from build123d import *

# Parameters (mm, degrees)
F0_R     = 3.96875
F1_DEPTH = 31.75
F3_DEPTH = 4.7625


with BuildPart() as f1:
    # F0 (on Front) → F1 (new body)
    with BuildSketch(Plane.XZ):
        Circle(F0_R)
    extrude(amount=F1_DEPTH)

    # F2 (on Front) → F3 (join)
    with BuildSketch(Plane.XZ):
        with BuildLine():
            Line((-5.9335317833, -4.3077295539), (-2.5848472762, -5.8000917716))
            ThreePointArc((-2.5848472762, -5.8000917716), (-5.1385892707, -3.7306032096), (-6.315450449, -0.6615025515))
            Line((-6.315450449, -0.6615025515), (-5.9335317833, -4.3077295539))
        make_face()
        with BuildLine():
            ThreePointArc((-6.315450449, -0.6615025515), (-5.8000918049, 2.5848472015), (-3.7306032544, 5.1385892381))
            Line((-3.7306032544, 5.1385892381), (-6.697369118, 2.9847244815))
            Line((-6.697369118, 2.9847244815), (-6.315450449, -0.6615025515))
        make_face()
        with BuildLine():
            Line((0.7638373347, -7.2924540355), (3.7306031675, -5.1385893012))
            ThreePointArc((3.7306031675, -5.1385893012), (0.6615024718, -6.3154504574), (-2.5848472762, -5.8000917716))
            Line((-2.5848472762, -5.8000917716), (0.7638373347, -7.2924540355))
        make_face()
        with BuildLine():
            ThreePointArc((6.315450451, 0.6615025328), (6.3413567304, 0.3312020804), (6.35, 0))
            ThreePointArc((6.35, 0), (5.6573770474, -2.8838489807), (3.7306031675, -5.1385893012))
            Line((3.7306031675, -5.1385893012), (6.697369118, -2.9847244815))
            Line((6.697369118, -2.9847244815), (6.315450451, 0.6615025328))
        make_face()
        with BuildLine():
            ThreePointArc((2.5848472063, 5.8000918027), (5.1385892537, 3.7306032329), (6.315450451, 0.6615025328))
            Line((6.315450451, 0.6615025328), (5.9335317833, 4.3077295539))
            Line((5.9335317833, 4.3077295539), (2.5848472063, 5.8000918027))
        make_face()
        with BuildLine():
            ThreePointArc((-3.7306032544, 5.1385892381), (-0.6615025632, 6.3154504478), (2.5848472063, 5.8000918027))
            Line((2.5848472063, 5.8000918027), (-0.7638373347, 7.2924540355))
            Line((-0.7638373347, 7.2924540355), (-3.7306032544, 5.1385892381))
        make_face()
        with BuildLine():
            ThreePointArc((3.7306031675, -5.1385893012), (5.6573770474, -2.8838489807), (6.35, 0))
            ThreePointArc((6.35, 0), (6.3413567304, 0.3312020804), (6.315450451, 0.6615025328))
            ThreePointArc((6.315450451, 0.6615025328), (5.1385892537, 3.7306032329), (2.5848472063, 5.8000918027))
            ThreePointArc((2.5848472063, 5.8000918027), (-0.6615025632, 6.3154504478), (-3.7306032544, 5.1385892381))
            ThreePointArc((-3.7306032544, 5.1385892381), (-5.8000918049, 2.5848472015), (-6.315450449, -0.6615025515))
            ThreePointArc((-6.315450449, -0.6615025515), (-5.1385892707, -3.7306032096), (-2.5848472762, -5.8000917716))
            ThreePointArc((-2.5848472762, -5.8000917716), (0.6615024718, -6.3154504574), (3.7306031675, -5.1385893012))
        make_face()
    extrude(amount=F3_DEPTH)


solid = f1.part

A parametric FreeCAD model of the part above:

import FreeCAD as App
import Part
import Sketcher
Q = App.Units.Quantity


def add_polygon(sketch, points):
    """Adds a closed chain of lines whose ends are joined by coincident constraints."""
    first, n = sketch.GeometryCount, len(points)
    for a, b in zip(points, points[1:] + points[:1]):
        sketch.addGeometry(Part.LineSegment(App.Vector(*a, 0), App.Vector(*b, 0)), False)
    for i in range(n):
        sketch.addConstraint(Sketcher.Constraint("Coincident", first + i, 2, first + (i + 1) % n, 1))

doc = App.newDocument("Part")
body = doc.addObject("PartDesign::Body", "Body")

# Sketch on XZ plane
sketch1 = body.newObject("Sketcher::SketchObject", "Sketch")
sketch1.AttachmentSupport = (doc.getObject("XZ_Plane"), [""])
sketch1.MapMode = "FlatFace"
sketch1.addGeometry(Part.Circle(App.Vector(0, 0, 0), App.Vector(0, 0, 1), 4), False)
sketch1.addConstraint([
    Sketcher.Constraint("Coincident", 0, 3, -1, 1),
    Sketcher.Constraint("Diameter", 0, Q("0.3125 in")),
])
pad1 = body.newObject("PartDesign::Pad", "Pad")
pad1.Profile = sketch1
pad1.Length = Q("1.25 in")

# Sketch on XZ plane
sketch2 = body.newObject("Sketcher::SketchObject", "Sketch001")
sketch2.AttachmentSupport = (doc.getObject("XZ_Plane"), [""])
sketch2.MapMode = "FlatFace"
add_polygon(sketch2, [(-5.9, -4.3), (-2.6, -5.8), (0.8, -7.3), (3.7, -5.1), (6.7, -3), (6.3, 0.7), (5.9, 4.3), (2.6, 5.8), (-0.8, 7.3), (-3.7, 5.1), (-6.7, 3), (-6.3, -0.7)])  # lines 0-11
sketch2.addConstraint([
    Sketcher.Constraint("Symmetric", 0, 2, 6, 2, -1, 1),
    Sketcher.Constraint("Symmetric", 1, 2, 7, 2, -1, 1),
    Sketcher.Constraint("Symmetric", 2, 2, 8, 2, -1, 1),
    Sketcher.Constraint("Symmetric", 3, 2, 9, 2, -1, 1),
    Sketcher.Constraint("Symmetric", 4, 2, 10, 2, -1, 1),
    Sketcher.Constraint("Symmetric", 5, 2, 11, 2, -1, 1),
    Sketcher.Constraint("Parallel", 0, 1),
    Sketcher.Constraint("Parallel", 2, 3),
    Sketcher.Constraint("Parallel", 4, 5),
    Sketcher.Constraint("Equal", 0, 1),
    Sketcher.Constraint("Equal", 1, 2),
    Sketcher.Constraint("Equal", 2, 3),
    Sketcher.Constraint("Equal", 3, 4),
    Sketcher.Constraint("Equal", 4, 5),
    Sketcher.Constraint("DistanceY", 1, 2, 5, 2, Q("0.4567001 in")),
    Sketcher.Constraint("DistanceY", 2, 2, -1, 1, 5.138589),
    Sketcher.Constraint("DistanceX", -1, 1, 3, 2, 6.697369),
    Sketcher.Constraint("DistanceX", -1, 1, 4, 2, 6.31545),
])
pad2 = body.newObject("PartDesign::Pad", "Pad001")
pad2.Profile = sketch2
pad2.Length = Q("0.1875 in")

doc.recompute()
